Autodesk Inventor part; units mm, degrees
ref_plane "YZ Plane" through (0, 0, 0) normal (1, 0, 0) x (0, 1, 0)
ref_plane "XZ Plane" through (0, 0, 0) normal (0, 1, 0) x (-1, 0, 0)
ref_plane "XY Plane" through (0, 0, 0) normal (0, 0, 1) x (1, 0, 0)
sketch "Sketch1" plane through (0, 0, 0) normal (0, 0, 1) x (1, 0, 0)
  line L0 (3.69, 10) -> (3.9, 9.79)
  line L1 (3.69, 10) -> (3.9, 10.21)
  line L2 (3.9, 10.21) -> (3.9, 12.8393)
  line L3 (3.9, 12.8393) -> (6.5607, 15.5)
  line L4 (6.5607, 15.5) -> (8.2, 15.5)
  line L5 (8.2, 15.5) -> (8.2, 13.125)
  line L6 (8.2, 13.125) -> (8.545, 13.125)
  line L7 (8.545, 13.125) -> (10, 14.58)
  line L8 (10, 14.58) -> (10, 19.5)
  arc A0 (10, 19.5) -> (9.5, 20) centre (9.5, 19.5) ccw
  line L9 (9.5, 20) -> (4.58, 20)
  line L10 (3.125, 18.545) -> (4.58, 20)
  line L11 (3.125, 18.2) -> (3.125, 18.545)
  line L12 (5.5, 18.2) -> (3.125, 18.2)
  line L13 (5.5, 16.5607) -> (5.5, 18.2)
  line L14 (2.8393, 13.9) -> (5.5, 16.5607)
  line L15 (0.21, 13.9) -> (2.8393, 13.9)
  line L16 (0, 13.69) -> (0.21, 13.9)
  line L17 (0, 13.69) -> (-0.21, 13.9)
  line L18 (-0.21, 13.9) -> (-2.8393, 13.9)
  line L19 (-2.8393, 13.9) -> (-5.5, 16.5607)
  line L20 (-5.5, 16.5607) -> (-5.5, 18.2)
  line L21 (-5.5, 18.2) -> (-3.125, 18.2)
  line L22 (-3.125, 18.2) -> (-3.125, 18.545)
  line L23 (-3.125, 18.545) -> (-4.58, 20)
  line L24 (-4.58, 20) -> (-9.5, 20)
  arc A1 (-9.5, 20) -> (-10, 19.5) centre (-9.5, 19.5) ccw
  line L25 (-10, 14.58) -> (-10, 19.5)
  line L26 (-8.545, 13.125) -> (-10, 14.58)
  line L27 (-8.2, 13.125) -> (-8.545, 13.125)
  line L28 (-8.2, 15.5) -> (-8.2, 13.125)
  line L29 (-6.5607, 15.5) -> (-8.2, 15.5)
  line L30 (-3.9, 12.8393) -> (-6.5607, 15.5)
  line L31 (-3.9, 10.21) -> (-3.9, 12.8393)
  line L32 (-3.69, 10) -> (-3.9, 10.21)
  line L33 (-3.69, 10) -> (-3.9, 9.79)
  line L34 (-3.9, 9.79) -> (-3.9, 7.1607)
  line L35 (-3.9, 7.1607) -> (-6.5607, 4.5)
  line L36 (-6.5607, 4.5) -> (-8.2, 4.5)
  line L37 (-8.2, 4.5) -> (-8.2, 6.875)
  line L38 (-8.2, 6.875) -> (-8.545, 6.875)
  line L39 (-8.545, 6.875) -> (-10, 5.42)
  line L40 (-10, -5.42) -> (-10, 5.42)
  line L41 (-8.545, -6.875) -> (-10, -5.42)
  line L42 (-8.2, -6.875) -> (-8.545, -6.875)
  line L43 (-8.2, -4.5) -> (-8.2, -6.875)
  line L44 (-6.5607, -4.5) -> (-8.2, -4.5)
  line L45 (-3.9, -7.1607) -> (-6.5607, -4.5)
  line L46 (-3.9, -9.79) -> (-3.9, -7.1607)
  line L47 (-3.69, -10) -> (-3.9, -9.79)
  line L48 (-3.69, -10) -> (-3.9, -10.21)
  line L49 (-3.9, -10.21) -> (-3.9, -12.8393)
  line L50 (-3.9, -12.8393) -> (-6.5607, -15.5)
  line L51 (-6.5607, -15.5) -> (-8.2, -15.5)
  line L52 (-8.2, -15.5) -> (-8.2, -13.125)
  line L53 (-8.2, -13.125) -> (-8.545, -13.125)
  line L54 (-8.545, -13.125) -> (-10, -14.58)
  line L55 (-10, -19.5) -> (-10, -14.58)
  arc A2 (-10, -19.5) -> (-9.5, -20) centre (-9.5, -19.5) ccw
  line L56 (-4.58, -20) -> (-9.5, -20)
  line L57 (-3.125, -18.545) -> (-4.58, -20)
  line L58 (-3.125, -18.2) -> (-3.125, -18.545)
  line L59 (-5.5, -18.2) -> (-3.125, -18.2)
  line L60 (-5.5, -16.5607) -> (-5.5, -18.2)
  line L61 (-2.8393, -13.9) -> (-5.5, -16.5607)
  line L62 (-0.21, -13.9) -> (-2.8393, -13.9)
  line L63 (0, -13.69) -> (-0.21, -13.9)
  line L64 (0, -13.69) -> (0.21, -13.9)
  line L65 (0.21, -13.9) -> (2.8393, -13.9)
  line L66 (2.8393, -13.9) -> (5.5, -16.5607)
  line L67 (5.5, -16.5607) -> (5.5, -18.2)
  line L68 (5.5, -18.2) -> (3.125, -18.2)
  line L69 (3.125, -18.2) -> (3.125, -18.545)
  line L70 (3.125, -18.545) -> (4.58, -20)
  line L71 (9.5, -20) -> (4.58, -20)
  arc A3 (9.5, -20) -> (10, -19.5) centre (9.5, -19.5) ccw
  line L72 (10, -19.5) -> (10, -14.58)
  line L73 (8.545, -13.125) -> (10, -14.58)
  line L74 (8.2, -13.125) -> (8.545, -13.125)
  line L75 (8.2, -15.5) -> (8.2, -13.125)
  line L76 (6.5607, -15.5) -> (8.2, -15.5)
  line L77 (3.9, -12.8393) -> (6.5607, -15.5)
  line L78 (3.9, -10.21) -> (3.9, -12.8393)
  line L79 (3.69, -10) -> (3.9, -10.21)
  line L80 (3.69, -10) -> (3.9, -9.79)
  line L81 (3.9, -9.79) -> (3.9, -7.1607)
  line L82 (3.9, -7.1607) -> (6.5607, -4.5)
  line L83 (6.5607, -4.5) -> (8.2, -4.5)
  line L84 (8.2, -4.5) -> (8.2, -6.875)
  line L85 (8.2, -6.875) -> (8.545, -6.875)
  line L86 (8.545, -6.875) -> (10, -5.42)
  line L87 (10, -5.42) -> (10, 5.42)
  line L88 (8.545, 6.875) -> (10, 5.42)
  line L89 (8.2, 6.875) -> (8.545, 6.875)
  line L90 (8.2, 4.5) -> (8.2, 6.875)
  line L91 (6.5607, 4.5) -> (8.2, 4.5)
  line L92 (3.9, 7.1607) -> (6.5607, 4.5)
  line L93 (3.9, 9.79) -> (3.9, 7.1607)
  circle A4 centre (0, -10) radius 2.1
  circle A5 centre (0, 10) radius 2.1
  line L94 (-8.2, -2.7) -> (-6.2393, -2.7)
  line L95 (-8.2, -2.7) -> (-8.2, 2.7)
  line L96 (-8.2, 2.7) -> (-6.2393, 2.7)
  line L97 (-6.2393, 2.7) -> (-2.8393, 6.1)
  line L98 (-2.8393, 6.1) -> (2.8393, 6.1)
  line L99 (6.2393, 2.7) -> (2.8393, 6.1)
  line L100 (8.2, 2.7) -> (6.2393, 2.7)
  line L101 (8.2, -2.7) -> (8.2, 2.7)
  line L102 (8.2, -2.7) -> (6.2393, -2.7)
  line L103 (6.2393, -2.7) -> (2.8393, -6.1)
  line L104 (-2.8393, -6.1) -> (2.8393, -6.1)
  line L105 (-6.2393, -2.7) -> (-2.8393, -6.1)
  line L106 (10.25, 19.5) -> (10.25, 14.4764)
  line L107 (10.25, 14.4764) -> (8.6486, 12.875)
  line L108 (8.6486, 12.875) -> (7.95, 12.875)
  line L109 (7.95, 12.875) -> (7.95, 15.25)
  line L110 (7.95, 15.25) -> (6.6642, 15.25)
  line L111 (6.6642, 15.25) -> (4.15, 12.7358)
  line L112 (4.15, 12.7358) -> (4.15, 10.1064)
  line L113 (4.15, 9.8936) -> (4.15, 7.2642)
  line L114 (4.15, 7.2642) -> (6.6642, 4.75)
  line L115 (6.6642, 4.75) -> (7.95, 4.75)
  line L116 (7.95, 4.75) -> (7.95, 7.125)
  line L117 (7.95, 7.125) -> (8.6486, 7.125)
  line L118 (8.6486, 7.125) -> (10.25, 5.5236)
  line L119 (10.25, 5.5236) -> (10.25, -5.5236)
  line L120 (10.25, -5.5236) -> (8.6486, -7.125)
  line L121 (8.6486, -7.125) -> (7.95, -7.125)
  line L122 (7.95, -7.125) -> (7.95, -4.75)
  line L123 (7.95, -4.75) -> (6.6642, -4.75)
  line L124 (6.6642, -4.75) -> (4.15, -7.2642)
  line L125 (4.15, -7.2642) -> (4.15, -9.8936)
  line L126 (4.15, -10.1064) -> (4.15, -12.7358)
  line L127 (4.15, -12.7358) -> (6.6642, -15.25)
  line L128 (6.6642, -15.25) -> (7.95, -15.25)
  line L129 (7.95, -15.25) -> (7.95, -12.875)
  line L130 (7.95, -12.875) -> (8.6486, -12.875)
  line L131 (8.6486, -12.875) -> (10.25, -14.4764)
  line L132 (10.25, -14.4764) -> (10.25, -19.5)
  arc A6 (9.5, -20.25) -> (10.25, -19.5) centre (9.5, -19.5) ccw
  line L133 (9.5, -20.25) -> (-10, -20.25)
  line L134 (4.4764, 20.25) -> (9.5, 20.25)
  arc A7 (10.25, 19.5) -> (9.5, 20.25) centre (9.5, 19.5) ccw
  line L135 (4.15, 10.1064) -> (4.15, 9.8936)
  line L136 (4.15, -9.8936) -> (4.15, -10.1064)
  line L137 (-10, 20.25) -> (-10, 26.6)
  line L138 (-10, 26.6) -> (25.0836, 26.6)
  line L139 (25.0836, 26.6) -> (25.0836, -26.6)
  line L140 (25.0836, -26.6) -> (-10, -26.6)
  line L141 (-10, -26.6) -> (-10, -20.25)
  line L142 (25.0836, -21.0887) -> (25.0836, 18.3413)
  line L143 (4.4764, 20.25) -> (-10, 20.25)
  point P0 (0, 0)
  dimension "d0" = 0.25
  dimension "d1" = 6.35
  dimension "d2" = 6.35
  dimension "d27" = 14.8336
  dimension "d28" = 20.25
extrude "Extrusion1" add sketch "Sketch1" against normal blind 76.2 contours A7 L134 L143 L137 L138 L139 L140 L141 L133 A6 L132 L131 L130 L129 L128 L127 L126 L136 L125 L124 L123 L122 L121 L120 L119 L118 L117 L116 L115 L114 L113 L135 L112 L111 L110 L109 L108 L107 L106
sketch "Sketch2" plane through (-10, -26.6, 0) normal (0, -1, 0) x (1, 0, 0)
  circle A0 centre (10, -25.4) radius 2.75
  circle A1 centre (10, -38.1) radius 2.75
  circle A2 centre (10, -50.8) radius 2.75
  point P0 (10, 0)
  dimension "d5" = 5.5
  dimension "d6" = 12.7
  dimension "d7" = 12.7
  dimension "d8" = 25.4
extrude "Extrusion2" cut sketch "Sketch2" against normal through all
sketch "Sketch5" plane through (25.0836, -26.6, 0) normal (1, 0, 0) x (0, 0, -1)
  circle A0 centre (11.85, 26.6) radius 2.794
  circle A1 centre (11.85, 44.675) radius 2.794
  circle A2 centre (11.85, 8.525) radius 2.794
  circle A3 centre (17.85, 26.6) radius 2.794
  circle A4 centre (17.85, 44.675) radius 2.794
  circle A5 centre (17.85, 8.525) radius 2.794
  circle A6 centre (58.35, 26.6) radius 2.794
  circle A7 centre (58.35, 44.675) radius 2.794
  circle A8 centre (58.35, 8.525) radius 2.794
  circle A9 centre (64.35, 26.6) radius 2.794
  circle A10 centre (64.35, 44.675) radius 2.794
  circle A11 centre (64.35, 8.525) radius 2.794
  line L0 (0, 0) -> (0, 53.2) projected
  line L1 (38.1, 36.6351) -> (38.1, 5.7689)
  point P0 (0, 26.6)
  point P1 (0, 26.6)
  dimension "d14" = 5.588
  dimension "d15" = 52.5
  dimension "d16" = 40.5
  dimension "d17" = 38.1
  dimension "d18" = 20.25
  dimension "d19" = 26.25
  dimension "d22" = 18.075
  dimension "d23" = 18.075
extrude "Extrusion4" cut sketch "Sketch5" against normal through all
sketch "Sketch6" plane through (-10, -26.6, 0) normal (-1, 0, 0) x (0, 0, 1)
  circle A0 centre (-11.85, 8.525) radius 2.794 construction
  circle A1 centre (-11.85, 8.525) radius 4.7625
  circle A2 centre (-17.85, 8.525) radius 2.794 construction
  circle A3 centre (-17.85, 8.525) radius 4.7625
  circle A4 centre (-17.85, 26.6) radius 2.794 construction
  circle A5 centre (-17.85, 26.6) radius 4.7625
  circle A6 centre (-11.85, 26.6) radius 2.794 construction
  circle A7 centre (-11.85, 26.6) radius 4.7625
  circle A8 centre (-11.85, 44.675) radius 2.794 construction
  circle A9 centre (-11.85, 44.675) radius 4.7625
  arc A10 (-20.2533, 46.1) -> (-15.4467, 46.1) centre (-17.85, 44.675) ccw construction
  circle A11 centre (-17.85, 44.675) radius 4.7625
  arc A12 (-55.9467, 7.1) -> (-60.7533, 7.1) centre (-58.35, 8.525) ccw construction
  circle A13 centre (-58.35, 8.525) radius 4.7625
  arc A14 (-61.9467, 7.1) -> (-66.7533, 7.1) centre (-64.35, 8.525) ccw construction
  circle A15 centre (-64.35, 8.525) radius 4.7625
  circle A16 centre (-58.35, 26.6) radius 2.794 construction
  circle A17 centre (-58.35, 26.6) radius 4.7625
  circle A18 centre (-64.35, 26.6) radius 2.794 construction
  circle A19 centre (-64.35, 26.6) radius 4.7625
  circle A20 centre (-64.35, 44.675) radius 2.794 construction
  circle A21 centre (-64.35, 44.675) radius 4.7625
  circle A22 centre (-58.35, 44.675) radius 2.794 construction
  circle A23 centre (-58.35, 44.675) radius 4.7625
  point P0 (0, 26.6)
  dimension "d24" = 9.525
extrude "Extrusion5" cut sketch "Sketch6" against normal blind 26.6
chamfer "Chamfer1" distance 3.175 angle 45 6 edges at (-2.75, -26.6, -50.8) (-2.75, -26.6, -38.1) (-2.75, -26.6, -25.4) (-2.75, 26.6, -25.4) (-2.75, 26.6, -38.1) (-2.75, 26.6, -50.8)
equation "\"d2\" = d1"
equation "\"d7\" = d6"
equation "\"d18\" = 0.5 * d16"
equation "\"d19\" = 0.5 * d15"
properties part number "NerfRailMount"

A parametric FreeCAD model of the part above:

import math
import FreeCAD as App
import Part
import Sketcher
from FreeCAD import Vector


def edges_at(feature, points):
    """Names of the edges that pass closest to the given points."""
    edges = feature.Shape.Edges
    near = lambda p: min(range(len(edges)), key=lambda i: edges[i].distToShape(Part.Vertex(*p))[0])
    return sorted({f"Edge{near(p) + 1}" for p in points})

doc = App.newDocument("Part")
body = doc.addObject("PartDesign::Body", "Body")

# Sketch on XY plane
sketch1 = body.newObject("Sketcher::SketchObject", "Sketch")
sketch1.AttachmentSupport = (doc.getObject("XY_Plane"), [""])
sketch1.MapMode = "FlatFace"
sketch1.addGeometry(Part.ArcOfCircle(Part.Circle(Vector(9.5, 19.5, 0), Vector(0, 0, 1), 0.8), math.radians(0), math.radians(90)), False)
sketch1.addGeometry(Part.LineSegment(Vector(10.2, 19.5, 0), Vector(10.2, 14.5, 0)), False)
sketch1.addGeometry(Part.LineSegment(Vector(10.2, 14.5, 0), Vector(8.6, 12.9, 0)), False)
sketch1.addGeometry(Part.LineSegment(Vector(8.6, 12.9, 0), Vector(8, 12.9, 0)), False)
sketch1.addGeometry(Part.LineSegment(Vector(8, 12.9, 0), Vector(8, 15.2, 0)), False)
sketch1.addGeometry(Part.LineSegment(Vector(8, 15.2, 0), Vector(6.7, 15.2, 0)), False)
sketch1.addGeometry(Part.LineSegment(Vector(6.7, 15.2, 0), Vector(4.2, 12.7, 0)), False)
sketch1.addGeometry(Part.LineSegment(Vector(4.2, 12.7, 0), Vector(4.2, 7.3, 0)), False)
sketch1.addGeometry(Part.LineSegment(Vector(4.2, 7.3, 0), Vector(6.7, 4.8, 0)), False)
sketch1.addGeometry(Part.LineSegment(Vector(6.7, 4.8, 0), Vector(8, 4.8, 0)), False)
sketch1.addGeometry(Part.LineSegment(Vector(8, 4.8, 0), Vector(8, 7.1, 0)), False)
sketch1.addGeometry(Part.LineSegment(Vector(8, 7.1, 0), Vector(8.6, 7.1, 0)), False)
sketch1.addGeometry(Part.LineSegment(Vector(8.6, 7.1, 0), Vector(10.2, 5.5, 0)), False)
sketch1.addGeometry(Part.LineSegment(Vector(10.2, 5.5, 0), Vector(10.2, -5.5, 0)), False)
sketch1.addGeometry(Part.LineSegment(Vector(10.2, -5.5, 0), Vector(8.6, -7.1, 0)), False)
sketch1.addGeometry(Part.LineSegment(Vector(8.6, -7.1, 0), Vector(8, -7.1, 0)), False)
sketch1.addGeometry(Part.LineSegment(Vector(8, -7.1, 0), Vector(8, -4.8, 0)), False)
sketch1.addGeometry(Part.LineSegment(Vector(8, -4.8, 0), Vector(6.7, -4.8, 0)), False)
sketch1.addGeometry(Part.LineSegment(Vector(6.7, -4.8, 0), Vector(4.2, -7.3, 0)), False)
sketch1.addGeometry(Part.LineSegment(Vector(4.2, -7.3, 0), Vector(4.2, -12.7, 0)), False)
sketch1.addGeometry(Part.LineSegment(Vector(4.2, -12.7, 0), Vector(6.7, -15.2, 0)), False)
sketch1.addGeometry(Part.LineSegment(Vector(6.7, -15.2, 0), Vector(8, -15.2, 0)), False)
sketch1.addGeometry(Part.LineSegment(Vector(8, -15.2, 0), Vector(8, -12.9, 0)), False)
sketch1.addGeometry(Part.LineSegment(Vector(8, -12.9, 0), Vector(8.6, -12.9, 0)), False)
sketch1.addGeometry(Part.LineSegment(Vector(8.6, -12.9, 0), Vector(10.2, -14.5, 0)), False)
sketch1.addGeometry(Part.LineSegment(Vector(10.2, -14.5, 0), Vector(10.2, -19.5, 0)), False)
sketch1.addGeometry(Part.ArcOfCircle(Part.Circle(Vector(9.5, -19.5, 0), Vector(0, 0, 1), 0.8), math.radians(-90), math.radians(0)), False)
sketch1.addGeometry(Part.LineSegment(Vector(9.5, -20.2, 0), Vector(-10, -20.2, 0)), False)
sketch1.addGeometry(Part.LineSegment(Vector(-10, -20.2, 0), Vector(-10, -26.6, 0)), False)
sketch1.addGeometry(Part.LineSegment(Vector(-10, -26.6, 0), Vector(25.1, -26.6, 0)), False)
sketch1.addGeometry(Part.LineSegment(Vector(25.1, -26.6, 0), Vector(25.1, 26.6, 0)), False)
sketch1.addGeometry(Part.LineSegment(Vector(25.1, 26.6, 0), Vector(-10, 26.6, 0)), False)
sketch1.addGeometry(Part.LineSegment(Vector(-10, 26.6, 0), Vector(-10, 20.2, 0)), False)
sketch1.addGeometry(Part.LineSegment(Vector(-10, 20.2, 0), Vector(9.5, 20.2, 0)), False)
sketch1.addConstraint(Sketcher.Constraint("Tangent", 0, 1, 1, 1))
sketch1.addConstraint(Sketcher.Constraint("Coincident", 1, 2, 2, 1))
sketch1.addConstraint(Sketcher.Constraint("Coincident", 2, 2, 3, 1))
sketch1.addConstraint(Sketcher.Constraint("Coincident", 3, 2, 4, 1))
sketch1.addConstraint(Sketcher.Constraint("Coincident", 4, 2, 5, 1))
sketch1.addConstraint(Sketcher.Constraint("Coincident", 5, 2, 6, 1))
sketch1.addConstraint(Sketcher.Constraint("Coincident", 6, 2, 7, 1))
sketch1.addConstraint(Sketcher.Constraint("Coincident", 7, 2, 8, 1))
sketch1.addConstraint(Sketcher.Constraint("Coincident", 8, 2, 9, 1))
sketch1.addConstraint(Sketcher.Constraint("Coincident", 9, 2, 10, 1))
sketch1.addConstraint(Sketcher.Constraint("Coincident", 10, 2, 11, 1))
sketch1.addConstraint(Sketcher.Constraint("Coincident", 11, 2, 12, 1))
sketch1.addConstraint(Sketcher.Constraint("Coincident", 12, 2, 13, 1))
sketch1.addConstraint(Sketcher.Constraint("Coincident", 13, 2, 14, 1))
sketch1.addConstraint(Sketcher.Constraint("Coincident", 14, 2, 15, 1))
sketch1.addConstraint(Sketcher.Constraint("Coincident", 15, 2, 16, 1))
sketch1.addConstraint(Sketcher.Constraint("Coincident", 16, 2, 17, 1))
sketch1.addConstraint(Sketcher.Constraint("Coincident", 17, 2, 18, 1))
sketch1.addConstraint(Sketcher.Constraint("Coincident", 18, 2, 19, 1))
sketch1.addConstraint(Sketcher.Constraint("Coincident", 19, 2, 20, 1))
sketch1.addConstraint(Sketcher.Constraint("Coincident", 20, 2, 21, 1))
sketch1.addConstraint(Sketcher.Constraint("Coincident", 21, 2, 22, 1))
sketch1.addConstraint(Sketcher.Constraint("Coincident", 22, 2, 23, 1))
sketch1.addConstraint(Sketcher.Constraint("Coincident", 23, 2, 24, 1))
sketch1.addConstraint(Sketcher.Constraint("Coincident", 24, 2, 25, 1))
sketch1.addConstraint(Sketcher.Constraint("Tangent", 25, 2, 26, 2))
sketch1.addConstraint(Sketcher.Constraint("Tangent", 26, 1, 27, 1))
sketch1.addConstraint(Sketcher.Constraint("Coincident", 27, 2, 28, 1))
sketch1.addConstraint(Sketcher.Constraint("Coincident", 28, 2, 29, 1))
sketch1.addConstraint(Sketcher.Constraint("Coincident", 29, 2, 30, 1))
sketch1.addConstraint(Sketcher.Constraint("Coincident", 30, 2, 31, 1))
sketch1.addConstraint(Sketcher.Constraint("Coincident", 31, 2, 32, 1))
sketch1.addConstraint(Sketcher.Constraint("Coincident", 32, 2, 33, 1))
sketch1.addConstraint(Sketcher.Constraint("Tangent", 33, 2, 0, 2))
sketch1.addConstraint(Sketcher.Constraint("Vertical", 1))
sketch1.addConstraint(Sketcher.Constraint("Horizontal", 3))
sketch1.addConstraint(Sketcher.Constraint("Vertical", 4))
sketch1.addConstraint(Sketcher.Constraint("Horizontal", 5))
sketch1.addConstraint(Sketcher.Constraint("Vertical", 7))
sketch1.addConstraint(Sketcher.Constraint("Horizontal", 9))
sketch1.addConstraint(Sketcher.Constraint("Vertical", 10))
sketch1.addConstraint(Sketcher.Constraint("Horizontal", 11))
sketch1.addConstraint(Sketcher.Constraint("Vertical", 13))
sketch1.addConstraint(Sketcher.Constraint("Horizontal", 15))
sketch1.addConstraint(Sketcher.Constraint("Vertical", 16))
sketch1.addConstraint(Sketcher.Constraint("Horizontal", 17))
sketch1.addConstraint(Sketcher.Constraint("Vertical", 19))
sketch1.addConstraint(Sketcher.Constraint("Horizontal", 21))
sketch1.addConstraint(Sketcher.Constraint("Vertical", 22))
sketch1.addConstraint(Sketcher.Constraint("Horizontal", 23))
sketch1.addConstraint(Sketcher.Constraint("Vertical", 25))
sketch1.addConstraint(Sketcher.Constraint("Horizontal", 27))
sketch1.addConstraint(Sketcher.Constraint("Vertical", 28))
sketch1.addConstraint(Sketcher.Constraint("Horizontal", 29))
sketch1.addConstraint(Sketcher.Constraint("Vertical", 30))
sketch1.addConstraint(Sketcher.Constraint("Horizontal", 31))
sketch1.addConstraint(Sketcher.Constraint("Vertical", 32))
sketch1.addConstraint(Sketcher.Constraint("Horizontal", 33))
sketch1.addConstraint(Sketcher.Constraint("Equal", 0, 26))
sketch1.addConstraint(Sketcher.Constraint("Symmetric", 0, 3, 26, 3, -1))
sketch1.addConstraint(Sketcher.Constraint("Symmetric", 11, 2, 14, 2, -1))
sketch1.addConstraint(Sketcher.Constraint("Symmetric", 9, 2, 16, 2, -1))
sketch1.addConstraint(Sketcher.Constraint("Symmetric", 7, 2, 18, 2, -1))
sketch1.addConstraint(Sketcher.Constraint("Symmetric", 5, 2, 20, 2, -1))
sketch1.addConstraint(Sketcher.Constraint("Symmetric", 3, 2, 22, 2, -1))
sketch1.addConstraint(Sketcher.Constraint("Symmetric", 28, 2, 31, 2, -1))
sketch1.addConstraint(Sketcher.Constraint("Parallel", 2, 6))
sketch1.addConstraint(Sketcher.Constraint("Perpendicular", 6, 8))
sketch1.addConstraint(Sketcher.Constraint("Parallel", 8, 12))
sketch1.addConstraint(Sketcher.Constraint("Perpendicular", 12, 14))
sketch1.addConstraint(Sketcher.Constraint("Parallel", 14, 18))
sketch1.addConstraint(Sketcher.Constraint("Perpendicular", 18, 20))
sketch1.addConstraint(Sketcher.Constraint("Parallel", 20, 24))
sketch1.addConstraint(Sketcher.Constraint("Vertical", 5, 2, 8, 2))
sketch1.addConstraint(Sketcher.Constraint("Vertical", 4, 2, 9, 2))
sketch1.addConstraint(Sketcher.Constraint("Vertical", 2, 2, 11, 2))
sketch1.addConstraint(Sketcher.Constraint("Vertical", 1, 2, 12, 2))
sketch1.addConstraint(Sketcher.Constraint("Vertical", 8, 2, 17, 2))
sketch1.addConstraint(Sketcher.Constraint("Vertical", 14, 2, 23, 2))
sketch1.addConstraint(Sketcher.Constraint("Equal", 4, 10))
sketch1.addConstraint(Sketcher.Constraint("DistanceY", 28, 2, 28, 1, 6.35))
sketch1.addConstraint(Sketcher.Constraint("DistanceY", 26, 1, -1, 1, 20.25))
sketch1.addConstraint(Sketcher.Constraint("Radius", 0, 0.75))
sketch1.addConstraint(Sketcher.Constraint("DistanceX", 31, 2, 0, 1, 20.25))
sketch1.addConstraint(Sketcher.Constraint("DistanceX", 27, 2, -1, 1, 10.0))
sketch1.addConstraint(Sketcher.Constraint("DistanceY", 26, 1, 21, 2, 5.0))
sketch1.addConstraint(Sketcher.Constraint("DistanceX", 3, 2, 1, 2, 2.3))
sketch1.addConstraint(Sketcher.Constraint("DistanceX", 6, 2, 3, 2, 3.8))
sketch1.addConstraint(Sketcher.Constraint("DistanceY", 16, 2, 9, 2, 9.5))
sketch1.addConstraint(Sketcher.Constraint("DistanceX", 25, 2, 29, 2, 14.8336))
sketch1.addConstraint(Sketcher.Constraint("DistanceY", 4, 1, 4, 2, 2.375))
sketch1.addConstraint(Sketcher.Constraint("DistanceX", 3, 2, 3, 1, 0.6986))
sketch1.addConstraint(Sketcher.Constraint("DistanceX", 5, 2, 5, 1, 1.2858))
pad1 = body.newObject("PartDesign::Pad", "Pad")
pad1.Profile = sketch1
pad1.Length = 76.2
pad1.Reversed = True

# Sketch on XZ plane
sketch2 = body.newObject("Sketcher::SketchObject", "Sketch001")
sketch2.AttachmentSupport = (doc.getObject("XZ_Plane"), [""])
sketch2.MapMode = "FlatFace"
sketch2.AttachmentOffset = App.Placement(Vector(0, 0, 26.6), App.Rotation())
sketch2.addGeometry(Part.Circle(Vector(0, -25.4, 0), Vector(0, 0, 1), 2.8), False)
sketch2.addGeometry(Part.Circle(Vector(0, -38.1, 0), Vector(0, 0, 1), 2.8), False)
sketch2.addGeometry(Part.Circle(Vector(0, -50.8, 0), Vector(0, 0, 1), 2.8), False)
sketch2.addConstraint(Sketcher.Constraint("Equal", 0, 1))
sketch2.addConstraint(Sketcher.Constraint("Equal", 1, 2))
sketch2.addConstraint(Sketcher.Constraint("PointOnObject", 0, 3, -2))
sketch2.addConstraint(Sketcher.Constraint("PointOnObject", 1, 3, -2))
sketch2.addConstraint(Sketcher.Constraint("PointOnObject", 2, 3, -2))
sketch2.addConstraint(Sketcher.Constraint("Diameter", 0, 5.5))
sketch2.addConstraint(Sketcher.Constraint("DistanceY", 0, 3, -1, 1, 25.4))
sketch2.addConstraint(Sketcher.Constraint("DistanceY", 1, 3, 0, 3, 12.7))
sketch2.addConstraint(Sketcher.Constraint("DistanceY", 2, 3, 1, 3, 12.7))
pocket1 = body.newObject("PartDesign::Pocket", "Pocket")
pocket1.Profile = sketch2
pocket1.Type = "ThroughAll"

# Sketch on YZ plane
sketch3 = body.newObject("Sketcher::SketchObject", "Sketch002")
sketch3.AttachmentSupport = (doc.getObject("YZ_Plane"), [""])
sketch3.MapMode = "FlatFace"
sketch3.AttachmentOffset = App.Placement(Vector(0, 0, 25.0836), App.Rotation())
sketch3.addGeometry(Part.Circle(Vector(0, -11.8, 0), Vector(0, 0, 1), 2.8), False)
sketch3.addGeometry(Part.Circle(Vector(18.1, -11.8, 0), Vector(0, 0, 1), 2.8), False)
sketch3.addGeometry(Part.Circle(Vector(-18.1, -11.8, 0), Vector(0, 0, 1), 2.8), False)
sketch3.addGeometry(Part.Circle(Vector(0, -17.9, 0), Vector(0, 0, 1), 2.8), False)
sketch3.addGeometry(Part.Circle(Vector(18.1, -17.9, 0), Vector(0, 0, 1), 2.8), False)
sketch3.addGeometry(Part.Circle(Vector(-18.1, -17.9, 0), Vector(0, 0, 1), 2.8), False)
sketch3.addGeometry(Part.Circle(Vector(0, -58.4, 0), Vector(0, 0, 1), 2.8), False)
sketch3.addGeometry(Part.Circle(Vector(18.1, -58.4, 0), Vector(0, 0, 1), 2.8), False)
sketch3.addGeometry(Part.Circle(Vector(-18.1, -58.4, 0), Vector(0, 0, 1), 2.8), False)
sketch3.addGeometry(Part.Circle(Vector(0, -64.3, 0), Vector(0, 0, 1), 2.8), False)
sketch3.addGeometry(Part.Circle(Vector(18.1, -64.3, 0), Vector(0, 0, 1), 2.8), False)
sketch3.addGeometry(Part.Circle(Vector(-18.1, -64.3, 0), Vector(0, 0, 1), 2.8), False)
sketch3.addConstraint(Sketcher.Constraint("Equal", 0, 1))
sketch3.addConstraint(Sketcher.Constraint("Equal", 1, 2))
sketch3.addConstraint(Sketcher.Constraint("Equal", 2, 3))
sketch3.addConstraint(Sketcher.Constraint("Equal", 3, 4))
sketch3.addConstraint(Sketcher.Constraint("Equal", 4, 5))
sketch3.addConstraint(Sketcher.Constraint("Equal", 5, 6))
sketch3.addConstraint(Sketcher.Constraint("Equal", 6, 7))
sketch3.addConstraint(Sketcher.Constraint("Equal", 7, 8))
sketch3.addConstraint(Sketcher.Constraint("Equal", 8, 9))
sketch3.addConstraint(Sketcher.Constraint("Equal", 9, 10))
sketch3.addConstraint(Sketcher.Constraint("Equal", 10, 11))
sketch3.addConstraint(Sketcher.Constraint("Symmetric", 1, 3, 2, 3, -2))
sketch3.addConstraint(Sketcher.Constraint("Symmetric", 4, 3, 5, 3, -2))
sketch3.addConstraint(Sketcher.Constraint("Symmetric", 7, 3, 8, 3, -2))
sketch3.addConstraint(Sketcher.Constraint("Symmetric", 10, 3, 11, 3, -2))
sketch3.addConstraint(Sketcher.Constraint("PointOnObject", 0, 3, -2))
sketch3.addConstraint(Sketcher.Constraint("PointOnObject", 3, 3, -2))
sketch3.addConstraint(Sketcher.Constraint("PointOnObject", 6, 3, -2))
sketch3.addConstraint(Sketcher.Constraint("PointOnObject", 9, 3, -2))
sketch3.addConstraint(Sketcher.Constraint("Horizontal", 0, 3, 1, 3))
sketch3.addConstraint(Sketcher.Constraint("Horizontal", 3, 3, 4, 3))
sketch3.addConstraint(Sketcher.Constraint("Horizontal", 6, 3, 7, 3))
sketch3.addConstraint(Sketcher.Constraint("Horizontal", 9, 3, 10, 3))
sketch3.addConstraint(Sketcher.Constraint("Vertical", 1, 3, 4, 3))
sketch3.addConstraint(Sketcher.Constraint("Vertical", 4, 3, 7, 3))
sketch3.addConstraint(Sketcher.Constraint("Vertical", 7, 3, 10, 3))
sketch3.addConstraint(Sketcher.Constraint("Diameter", 0, 5.588))
sketch3.addConstraint(Sketcher.Constraint("DistanceY", 6, 3, 3, 3, 40.5))
sketch3.addConstraint(Sketcher.Constraint("DistanceX", -1, 1, 1, 3, 18.075))
sketch3.addConstraint(Sketcher.Constraint("DistanceY", 3, 3, 0, 3, 6.0))
sketch3.addConstraint(Sketcher.Constraint("DistanceY", 9, 3, 6, 3, 6.0))
sketch3.addConstraint(Sketcher.Constraint("DistanceY", 0, 3, -1, 1, 11.85))
pocket2 = body.newObject("PartDesign::Pocket", "Pocket001")
pocket2.Profile = sketch3
pocket2.Type = "ThroughAll"

# Sketch on YZ plane
sketch4 = body.newObject("Sketcher::SketchObject", "Sketch003")
sketch4.AttachmentSupport = (doc.getObject("YZ_Plane"), [""])
sketch4.MapMode = "FlatFace"
sketch4.AttachmentOffset = App.Placement(Vector(0, 0, -10), App.Rotation())
sketch4.addGeometry(Part.ArcOfCircle(Part.Circle(Vector(-18.1, -11.8, 0), Vector(0, 0, 1), 4.8), math.radians(-39), math.radians(219)), False)
sketch4.addGeometry(Part.ArcOfCircle(Part.Circle(Vector(-18.1, -17.9, 0), Vector(0, 0, 1), 4.8), math.radians(141), math.radians(399)), False)
sketch4.addGeometry(Part.ArcOfCircle(Part.Circle(Vector(0, -11.8, 0), Vector(0, 0, 1), 4.8), math.radians(-39), math.radians(219)), False)
sketch4.addGeometry(Part.ArcOfCircle(Part.Circle(Vector(0, -17.9, 0), Vector(0, 0, 1), 4.8), math.radians(141), math.radians(399)), False)
sketch4.addGeometry(Part.ArcOfCircle(Part.Circle(Vector(18.1, -11.8, 0), Vector(0, 0, 1), 4.8), math.radians(-39), math.radians(219)), False)
sketch4.addGeometry(Part.ArcOfCircle(Part.Circle(Vector(18.1, -17.9, 0), Vector(0, 0, 1), 4.8), math.radians(141), math.radians(399)), False)
sketch4.addGeometry(Part.ArcOfCircle(Part.Circle(Vector(-18.1, -58.4, 0), Vector(0, 0, 1), 4.8), math.radians(-39), math.radians(219)), False)
sketch4.addGeometry(Part.ArcOfCircle(Part.Circle(Vector(-18.1, -64.3, 0), Vector(0, 0, 1), 4.8), math.radians(141), math.radians(399)), False)
sketch4.addGeometry(Part.ArcOfCircle(Part.Circle(Vector(0, -58.4, 0), Vector(0, 0, 1), 4.8), math.radians(-39), math.radians(219)), False)
sketch4.addGeometry(Part.ArcOfCircle(Part.Circle(Vector(0, -64.3, 0), Vector(0, 0, 1), 4.8), math.radians(141), math.radians(399)), False)
sketch4.addGeometry(Part.ArcOfCircle(Part.Circle(Vector(18.1, -58.4, 0), Vector(0, 0, 1), 4.8), math.radians(-39), math.radians(219)), False)
sketch4.addGeometry(Part.ArcOfCircle(Part.Circle(Vector(18.1, -64.3, 0), Vector(0, 0, 1), 4.8), math.radians(141), math.radians(399)), False)
sketch4.addConstraint(Sketcher.Constraint("Coincident", 0, 1, 1, 2))
sketch4.addConstraint(Sketcher.Constraint("Coincident", 1, 1, 0, 2))
sketch4.addConstraint(Sketcher.Constraint("Coincident", 2, 1, 3, 2))
sketch4.addConstraint(Sketcher.Constraint("Coincident", 3, 1, 2, 2))
sketch4.addConstraint(Sketcher.Constraint("Coincident", 4, 1, 5, 2))
sketch4.addConstraint(Sketcher.Constraint("Coincident", 5, 1, 4, 2))
sketch4.addConstraint(Sketcher.Constraint("Coincident", 6, 1, 7, 2))
sketch4.addConstraint(Sketcher.Constraint("Coincident", 7, 1, 6, 2))
sketch4.addConstraint(Sketcher.Constraint("Coincident", 8, 1, 9, 2))
sketch4.addConstraint(Sketcher.Constraint("Coincident", 9, 1, 8, 2))
sketch4.addConstraint(Sketcher.Constraint("Coincident", 10, 1, 11, 2))
sketch4.addConstraint(Sketcher.Constraint("Coincident", 11, 1, 10, 2))
sketch4.addConstraint(Sketcher.Constraint("Equal", 0, 1))
sketch4.addConstraint(Sketcher.Constraint("Equal", 1, 2))
sketch4.addConstraint(Sketcher.Constraint("Equal", 2, 3))
sketch4.addConstraint(Sketcher.Constraint("Equal", 3, 4))
sketch4.addConstraint(Sketcher.Constraint("Equal", 4, 5))
sketch4.addConstraint(Sketcher.Constraint("Equal", 5, 6))
sketch4.addConstraint(Sketcher.Constraint("Equal", 6, 7))
sketch4.addConstraint(Sketcher.Constraint("Equal", 7, 8))
sketch4.addConstraint(Sketcher.Constraint("Equal", 8, 9))
sketch4.addConstraint(Sketcher.Constraint("Equal", 9, 10))
sketch4.addConstraint(Sketcher.Constraint("Equal", 10, 11))
sketch4.addConstraint(Sketcher.Constraint("Symmetric", 0, 3, 4, 3, -2))
sketch4.addConstraint(Sketcher.Constraint("Symmetric", 1, 3, 5, 3, -2))
sketch4.addConstraint(Sketcher.Constraint("Symmetric", 6, 3, 10, 3, -2))
sketch4.addConstraint(Sketcher.Constraint("Symmetric", 7, 3, 11, 3, -2))
sketch4.addConstraint(Sketcher.Constraint("Symmetric", 2, 1, 3, 1, -2))
sketch4.addConstraint(Sketcher.Constraint("Symmetric", 8, 1, 9, 1, -2))
sketch4.addConstraint(Sketcher.Constraint("Horizontal", 0, 3, 2, 3))
sketch4.addConstraint(Sketcher.Constraint("Horizontal", 1, 3, 3, 3))
sketch4.addConstraint(Sketcher.Constraint("Horizontal", 6, 3, 8, 3))
sketch4.addConstraint(Sketcher.Constraint("Horizontal", 7, 3, 9, 3))
sketch4.addConstraint(Sketcher.Constraint("Horizontal", 0, 1, 1, 1))
sketch4.addConstraint(Sketcher.Constraint("Horizontal", 6, 1, 7, 1))
sketch4.addConstraint(Sketcher.Constraint("Vertical", 1, 3, 6, 3))
sketch4.addConstraint(Sketcher.Constraint("Vertical", 0, 1, 6, 1))
sketch4.addConstraint(Sketcher.Constraint("Radius", 0, 4.7625))
sketch4.addConstraint(Sketcher.Constraint("DistanceY", 1, 3, 0, 3, 6.0))
sketch4.addConstraint(Sketcher.Constraint("DistanceY", 6, 3, 1, 3, 40.5))
sketch4.addConstraint(Sketcher.Constraint("DistanceY", 0, 3, -1, 1, 11.85))
sketch4.addConstraint(Sketcher.Constraint("DistanceX", 0, 3, 4, 3, 36.15))
pocket3 = body.newObject("PartDesign::Pocket", "Pocket002")
pocket3.Profile = sketch4
pocket3.Length = 26.6
pocket3.Reversed = True
doc.recompute()

chamfer = body.newObject("PartDesign::Chamfer", "Chamfer")
chamfer.Base = (pocket3, edges_at(pocket3, [
    (-2.75, -26.6, -50.8),
    (-2.75, -26.6, -38.1),
    (-2.75, -26.6, -25.4),
    (-2.75, 26.6, -25.4),
    (-2.75, 26.6, -38.1),
    (-2.75, 26.6, -50.8),
]))
chamfer.Size = 3.175

doc.recompute()
